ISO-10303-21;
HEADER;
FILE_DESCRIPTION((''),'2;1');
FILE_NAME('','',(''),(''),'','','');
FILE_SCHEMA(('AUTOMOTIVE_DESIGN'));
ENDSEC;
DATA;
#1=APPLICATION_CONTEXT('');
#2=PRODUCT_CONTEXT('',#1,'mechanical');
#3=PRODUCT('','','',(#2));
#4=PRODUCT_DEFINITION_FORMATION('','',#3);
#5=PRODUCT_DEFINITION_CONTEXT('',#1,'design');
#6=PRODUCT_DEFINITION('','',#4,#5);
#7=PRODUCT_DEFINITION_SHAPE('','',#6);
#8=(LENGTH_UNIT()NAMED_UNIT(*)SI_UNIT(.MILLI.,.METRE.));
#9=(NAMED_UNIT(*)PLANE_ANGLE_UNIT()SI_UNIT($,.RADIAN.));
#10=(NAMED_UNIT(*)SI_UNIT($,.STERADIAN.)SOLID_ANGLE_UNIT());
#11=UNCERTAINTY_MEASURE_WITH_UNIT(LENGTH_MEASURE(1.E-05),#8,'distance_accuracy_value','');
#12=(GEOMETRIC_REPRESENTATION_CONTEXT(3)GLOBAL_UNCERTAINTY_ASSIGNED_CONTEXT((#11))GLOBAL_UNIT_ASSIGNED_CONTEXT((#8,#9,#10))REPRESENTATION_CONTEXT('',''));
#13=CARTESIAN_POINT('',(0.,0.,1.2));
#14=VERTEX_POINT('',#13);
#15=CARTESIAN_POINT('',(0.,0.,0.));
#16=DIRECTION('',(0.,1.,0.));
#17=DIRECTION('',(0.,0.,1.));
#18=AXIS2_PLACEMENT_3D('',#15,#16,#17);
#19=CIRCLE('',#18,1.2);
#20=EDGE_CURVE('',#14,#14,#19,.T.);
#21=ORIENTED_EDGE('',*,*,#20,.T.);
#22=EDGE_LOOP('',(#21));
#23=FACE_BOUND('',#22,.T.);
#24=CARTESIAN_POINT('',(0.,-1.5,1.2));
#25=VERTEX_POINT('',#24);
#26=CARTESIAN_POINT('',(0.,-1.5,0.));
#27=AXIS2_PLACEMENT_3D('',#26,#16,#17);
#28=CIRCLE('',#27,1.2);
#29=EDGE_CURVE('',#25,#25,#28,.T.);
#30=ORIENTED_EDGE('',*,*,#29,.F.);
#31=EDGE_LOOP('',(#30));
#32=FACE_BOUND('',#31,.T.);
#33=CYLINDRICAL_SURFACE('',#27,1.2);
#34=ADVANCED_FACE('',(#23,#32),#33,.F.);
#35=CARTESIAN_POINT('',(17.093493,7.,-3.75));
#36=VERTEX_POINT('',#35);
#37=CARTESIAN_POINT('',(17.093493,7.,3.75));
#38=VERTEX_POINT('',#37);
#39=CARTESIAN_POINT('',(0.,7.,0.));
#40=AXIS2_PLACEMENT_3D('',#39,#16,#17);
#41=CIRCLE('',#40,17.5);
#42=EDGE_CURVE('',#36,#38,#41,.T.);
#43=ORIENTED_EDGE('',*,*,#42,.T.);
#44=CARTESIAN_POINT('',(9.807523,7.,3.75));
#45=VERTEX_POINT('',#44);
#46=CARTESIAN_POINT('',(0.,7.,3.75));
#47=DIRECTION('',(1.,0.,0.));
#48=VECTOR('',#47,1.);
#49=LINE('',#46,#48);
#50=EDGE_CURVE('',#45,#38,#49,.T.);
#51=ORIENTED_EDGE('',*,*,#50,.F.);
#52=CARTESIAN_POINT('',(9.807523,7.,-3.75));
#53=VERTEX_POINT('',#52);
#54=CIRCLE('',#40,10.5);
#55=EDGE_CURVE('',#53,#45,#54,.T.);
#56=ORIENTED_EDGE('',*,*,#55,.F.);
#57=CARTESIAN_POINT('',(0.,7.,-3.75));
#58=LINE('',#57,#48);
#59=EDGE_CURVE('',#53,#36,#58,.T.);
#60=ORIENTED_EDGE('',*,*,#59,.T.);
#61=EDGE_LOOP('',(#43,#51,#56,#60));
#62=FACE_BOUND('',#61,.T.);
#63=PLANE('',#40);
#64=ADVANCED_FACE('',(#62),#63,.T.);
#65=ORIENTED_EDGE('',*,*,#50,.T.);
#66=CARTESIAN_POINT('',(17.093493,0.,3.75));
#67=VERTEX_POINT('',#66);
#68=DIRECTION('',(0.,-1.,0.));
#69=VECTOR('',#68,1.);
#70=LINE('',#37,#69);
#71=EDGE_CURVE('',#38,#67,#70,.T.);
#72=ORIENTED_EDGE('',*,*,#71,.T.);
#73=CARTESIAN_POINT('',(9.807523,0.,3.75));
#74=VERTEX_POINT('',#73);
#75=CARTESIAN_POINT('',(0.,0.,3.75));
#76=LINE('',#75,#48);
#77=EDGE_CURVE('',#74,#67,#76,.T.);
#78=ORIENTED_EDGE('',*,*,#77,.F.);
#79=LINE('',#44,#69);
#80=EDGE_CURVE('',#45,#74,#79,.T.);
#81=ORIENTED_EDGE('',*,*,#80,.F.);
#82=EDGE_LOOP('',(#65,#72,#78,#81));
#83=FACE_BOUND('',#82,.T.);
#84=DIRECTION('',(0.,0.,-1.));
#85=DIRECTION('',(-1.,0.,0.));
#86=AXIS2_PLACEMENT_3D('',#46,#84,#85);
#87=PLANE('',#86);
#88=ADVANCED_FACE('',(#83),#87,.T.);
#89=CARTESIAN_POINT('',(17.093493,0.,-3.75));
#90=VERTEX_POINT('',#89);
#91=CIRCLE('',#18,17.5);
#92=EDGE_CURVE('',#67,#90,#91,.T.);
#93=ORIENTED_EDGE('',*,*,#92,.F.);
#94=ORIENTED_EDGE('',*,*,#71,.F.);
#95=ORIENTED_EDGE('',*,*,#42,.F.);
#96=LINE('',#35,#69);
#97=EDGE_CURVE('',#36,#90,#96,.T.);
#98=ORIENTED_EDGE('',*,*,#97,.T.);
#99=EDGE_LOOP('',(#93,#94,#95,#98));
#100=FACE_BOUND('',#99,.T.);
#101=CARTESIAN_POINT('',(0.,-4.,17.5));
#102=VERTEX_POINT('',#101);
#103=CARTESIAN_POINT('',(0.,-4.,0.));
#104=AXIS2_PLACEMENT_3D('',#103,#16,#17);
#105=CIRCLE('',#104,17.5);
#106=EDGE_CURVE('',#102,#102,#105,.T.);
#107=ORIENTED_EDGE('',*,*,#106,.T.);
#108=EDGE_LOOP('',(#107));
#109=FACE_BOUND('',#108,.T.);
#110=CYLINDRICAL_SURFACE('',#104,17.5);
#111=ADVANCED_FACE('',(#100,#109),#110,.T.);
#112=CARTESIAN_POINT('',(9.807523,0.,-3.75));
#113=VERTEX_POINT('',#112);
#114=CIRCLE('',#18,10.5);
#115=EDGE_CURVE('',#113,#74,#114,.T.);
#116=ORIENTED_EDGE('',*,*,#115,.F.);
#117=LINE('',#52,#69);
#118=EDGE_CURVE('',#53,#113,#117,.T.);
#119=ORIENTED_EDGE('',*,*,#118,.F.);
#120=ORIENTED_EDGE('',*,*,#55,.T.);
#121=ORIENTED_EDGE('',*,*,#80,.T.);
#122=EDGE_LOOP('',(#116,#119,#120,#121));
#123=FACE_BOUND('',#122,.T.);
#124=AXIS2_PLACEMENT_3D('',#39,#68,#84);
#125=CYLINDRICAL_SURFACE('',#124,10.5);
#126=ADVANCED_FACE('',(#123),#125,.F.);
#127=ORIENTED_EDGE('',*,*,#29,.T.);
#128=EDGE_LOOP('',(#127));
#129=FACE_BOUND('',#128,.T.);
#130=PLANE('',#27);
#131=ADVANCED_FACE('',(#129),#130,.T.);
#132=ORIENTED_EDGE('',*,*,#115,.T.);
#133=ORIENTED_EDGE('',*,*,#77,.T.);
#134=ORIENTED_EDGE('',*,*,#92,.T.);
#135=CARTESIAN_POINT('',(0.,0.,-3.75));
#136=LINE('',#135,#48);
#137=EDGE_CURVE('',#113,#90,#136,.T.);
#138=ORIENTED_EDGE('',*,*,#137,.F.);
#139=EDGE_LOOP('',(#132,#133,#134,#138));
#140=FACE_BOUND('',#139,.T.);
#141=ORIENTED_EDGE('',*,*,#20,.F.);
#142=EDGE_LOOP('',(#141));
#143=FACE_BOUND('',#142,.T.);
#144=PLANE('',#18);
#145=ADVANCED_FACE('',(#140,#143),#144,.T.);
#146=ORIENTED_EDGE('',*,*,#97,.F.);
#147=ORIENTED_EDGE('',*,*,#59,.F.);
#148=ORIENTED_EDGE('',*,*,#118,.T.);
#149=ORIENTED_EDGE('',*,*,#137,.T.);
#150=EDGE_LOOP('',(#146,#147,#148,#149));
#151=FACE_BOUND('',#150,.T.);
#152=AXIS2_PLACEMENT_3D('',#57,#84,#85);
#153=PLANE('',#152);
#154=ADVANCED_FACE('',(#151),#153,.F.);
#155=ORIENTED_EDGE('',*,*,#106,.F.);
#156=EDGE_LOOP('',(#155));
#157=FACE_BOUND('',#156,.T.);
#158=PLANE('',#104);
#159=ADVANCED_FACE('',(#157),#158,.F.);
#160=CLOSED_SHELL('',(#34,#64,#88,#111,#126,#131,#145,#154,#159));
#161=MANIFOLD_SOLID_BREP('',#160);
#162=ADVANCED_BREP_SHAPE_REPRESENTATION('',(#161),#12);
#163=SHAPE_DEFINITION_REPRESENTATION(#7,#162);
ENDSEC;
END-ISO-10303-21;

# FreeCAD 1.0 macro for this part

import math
import FreeCAD as App
import Part
import Sketcher

doc = App.newDocument("Part")
body = doc.addObject("PartDesign::Body", "Body")

# Sketch on XZ plane
sketch1 = body.newObject("Sketcher::SketchObject", "Sketch")
sketch1.AttachmentSupport = (doc.getObject("XZ_Plane"), [""])
sketch1.MapMode = "FlatFace"
sketch1.addGeometry(Part.Circle(App.Vector(0, 0, 0), App.Vector(0, 0, 1), 18), False)
sketch1.addConstraint([
    Sketcher.Constraint("Coincident", 0, 3, -1, 1),
    Sketcher.Constraint("Diameter", 0, 35.0),
])
pad1 = body.newObject("PartDesign::Pad", "Pad")
pad1.Profile = sketch1
pad1.Length = 4

# Sketch on XZ plane
sketch2 = body.newObject("Sketcher::SketchObject", "Sketch001")
sketch2.AttachmentSupport = (doc.getObject("XZ_Plane"), [""])
sketch2.MapMode = "FlatFace"
sketch2.addGeometry([
    Part.LineSegment(App.Vector(17, 4, 0), App.Vector(10, 4, 0)),
    Part.ArcOfCircle(Part.Circle(App.Vector(0, 0, 0), App.Vector(0, 0, 1), 10), math.radians(21), math.radians(339)),
    Part.LineSegment(App.Vector(10, -4, 0), App.Vector(17, -4, 0)),
    Part.ArcOfCircle(Part.Circle(App.Vector(0, 0, 0), App.Vector(0, 0, 1), 18), math.radians(12), math.radians(348)),
], False)
sketch2.addConstraint([
    Sketcher.Constraint("Coincident", 0, 2, 1, 1),
    Sketcher.Constraint("Coincident", 1, 2, 2, 1),
    Sketcher.Constraint("Coincident", 2, 2, 3, 2),
    Sketcher.Constraint("Coincident", 3, 1, 0, 1),
    Sketcher.Constraint("Horizontal", 0),
    Sketcher.Constraint("Horizontal", 2),
    Sketcher.Constraint("Coincident", 1, 3, -1, 1),
    Sketcher.Constraint("Coincident", 3, 3, -1, 1),
    Sketcher.Constraint("Vertical", 0, 2, 1, 2),
    Sketcher.Constraint("Radius", 1, 10.5),
    Sketcher.Constraint("Radius", 3, 17.5),
    Sketcher.Constraint("DistanceY", 1, 2, 0, 2, 7.5),
])
pad2 = body.newObject("PartDesign::Pad", "Pad001")
pad2.Profile = sketch2
pad2.Length = 7
pad2.Reversed = True

# Sketch on XZ plane
sketch3 = body.newObject("Sketcher::SketchObject", "Sketch002")
sketch3.AttachmentSupport = (doc.getObject("XZ_Plane"), [""])
sketch3.MapMode = "FlatFace"
sketch3.addGeometry(Part.Circle(App.Vector(0, 0, 0), App.Vector(0, 0, 1), 1.2), False)
sketch3.addConstraint([
    Sketcher.Constraint("Coincident", 0, 3, -1, 1),
    Sketcher.Constraint("Diameter", 0, 2.4),
])
pocket1 = body.newObject("PartDesign::Pocket", "Pocket")
pocket1.Profile = sketch3
pocket1.Length = 1.5
pocket1.Reversed = True

doc.recompute()
